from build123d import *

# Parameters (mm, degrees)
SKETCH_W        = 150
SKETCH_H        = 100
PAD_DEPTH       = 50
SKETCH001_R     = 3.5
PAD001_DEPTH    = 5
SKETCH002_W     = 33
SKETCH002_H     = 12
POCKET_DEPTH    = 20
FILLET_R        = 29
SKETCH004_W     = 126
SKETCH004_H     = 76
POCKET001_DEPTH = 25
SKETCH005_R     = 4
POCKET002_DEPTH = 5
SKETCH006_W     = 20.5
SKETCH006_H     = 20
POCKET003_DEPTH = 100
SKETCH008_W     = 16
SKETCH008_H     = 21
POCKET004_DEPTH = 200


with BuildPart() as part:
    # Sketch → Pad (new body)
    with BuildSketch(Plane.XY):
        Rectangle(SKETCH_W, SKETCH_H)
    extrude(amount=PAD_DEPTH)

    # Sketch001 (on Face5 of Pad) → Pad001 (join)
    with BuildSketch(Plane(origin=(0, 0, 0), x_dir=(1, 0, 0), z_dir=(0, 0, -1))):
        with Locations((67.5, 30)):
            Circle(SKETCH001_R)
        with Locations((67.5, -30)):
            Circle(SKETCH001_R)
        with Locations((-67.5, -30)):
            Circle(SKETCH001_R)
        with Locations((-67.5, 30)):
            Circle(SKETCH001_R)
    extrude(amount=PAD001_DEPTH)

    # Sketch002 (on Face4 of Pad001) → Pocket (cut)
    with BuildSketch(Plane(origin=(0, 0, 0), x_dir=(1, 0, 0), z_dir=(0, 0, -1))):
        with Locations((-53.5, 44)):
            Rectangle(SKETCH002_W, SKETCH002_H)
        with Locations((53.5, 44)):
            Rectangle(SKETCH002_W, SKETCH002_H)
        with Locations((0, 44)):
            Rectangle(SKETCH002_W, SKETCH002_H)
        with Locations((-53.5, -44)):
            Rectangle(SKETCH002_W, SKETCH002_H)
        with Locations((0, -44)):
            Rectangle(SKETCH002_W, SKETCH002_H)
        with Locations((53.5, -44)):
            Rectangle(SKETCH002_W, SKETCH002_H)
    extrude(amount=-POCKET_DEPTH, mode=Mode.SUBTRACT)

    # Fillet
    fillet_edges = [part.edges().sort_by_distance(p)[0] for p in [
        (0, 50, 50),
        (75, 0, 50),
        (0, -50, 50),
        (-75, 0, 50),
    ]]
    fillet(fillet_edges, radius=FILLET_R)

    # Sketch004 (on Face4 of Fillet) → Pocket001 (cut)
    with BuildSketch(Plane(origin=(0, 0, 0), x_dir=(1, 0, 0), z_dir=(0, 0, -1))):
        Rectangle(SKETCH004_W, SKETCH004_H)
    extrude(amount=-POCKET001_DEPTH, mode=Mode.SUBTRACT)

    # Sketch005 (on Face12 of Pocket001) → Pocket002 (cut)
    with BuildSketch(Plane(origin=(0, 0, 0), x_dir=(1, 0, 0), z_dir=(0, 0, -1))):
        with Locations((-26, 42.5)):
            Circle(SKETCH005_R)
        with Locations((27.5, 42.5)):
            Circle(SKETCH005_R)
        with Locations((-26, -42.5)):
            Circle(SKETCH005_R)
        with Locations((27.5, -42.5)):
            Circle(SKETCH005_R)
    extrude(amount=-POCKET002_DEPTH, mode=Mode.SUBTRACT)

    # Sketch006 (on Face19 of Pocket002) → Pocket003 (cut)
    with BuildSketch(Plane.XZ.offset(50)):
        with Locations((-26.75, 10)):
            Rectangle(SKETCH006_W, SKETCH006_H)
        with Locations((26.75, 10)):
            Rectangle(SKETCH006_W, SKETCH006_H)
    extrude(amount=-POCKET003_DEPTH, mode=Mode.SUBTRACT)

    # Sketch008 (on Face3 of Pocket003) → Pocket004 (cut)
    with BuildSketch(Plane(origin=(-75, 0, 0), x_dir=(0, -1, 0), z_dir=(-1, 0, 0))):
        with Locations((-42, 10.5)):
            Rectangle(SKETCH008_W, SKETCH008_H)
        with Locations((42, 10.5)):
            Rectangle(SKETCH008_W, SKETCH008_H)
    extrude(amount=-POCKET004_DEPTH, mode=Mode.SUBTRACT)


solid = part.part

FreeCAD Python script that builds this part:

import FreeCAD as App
import Part
import Sketcher


def edges_at(feature, points):
    """Names of the edges that pass closest to the given points."""
    edges = feature.Shape.Edges
    near = lambda p: min(range(len(edges)), key=lambda i: edges[i].distToShape(Part.Vertex(*p))[0])
    return sorted({f"Edge{near(p) + 1}" for p in points})

doc = App.newDocument("Part")
body = doc.addObject("PartDesign::Body", "Body")

sketch1 = doc.addObject("Sketcher::SketchObject", "Sketch")
body.addObject(sketch1)
sketch1.AttachmentSupport = (doc.XY_Plane, [""])
sketch1.MapMode = "FlatFace"
sketch1.addGeometry([
    Part.LineSegment(App.Vector(-75, 50, 0), App.Vector(-75, -50, 0)),
    Part.LineSegment(App.Vector(-75, -50, 0), App.Vector(75, -50, 0)),
    Part.LineSegment(App.Vector(75, -50, 0), App.Vector(75, 50, 0)),
    Part.LineSegment(App.Vector(75, 50, 0), App.Vector(-75, 50, 0)),
], False)
sketch1.addConstraint([
    Sketcher.Constraint("Coincident", 0, 2, 1, 1),
    Sketcher.Constraint("Coincident", 1, 2, 2, 1),
    Sketcher.Constraint("Coincident", 2, 2, 3, 1),
    Sketcher.Constraint("Coincident", 3, 2, 0, 1),
    Sketcher.Constraint("Vertical", 0),
    Sketcher.Constraint("Horizontal", 1),
    Sketcher.Constraint("Vertical", 2),
    Sketcher.Constraint("Horizontal", 3),
    Sketcher.Constraint("Symmetric", 0, 2, 2, 2, -1, 1),
    Sketcher.Constraint("DistanceX", 1, 1, 1, 2, 150.0),
    Sketcher.Constraint("DistanceY", 0, 2, 0, 1, 100.0),
])
pad1 = doc.addObject("PartDesign::Pad", "Pad")
body.addObject(pad1)
pad1.Profile = sketch1
pad1.Length = 50

sketch2 = doc.addObject("Sketcher::SketchObject", "Sketch001")
body.addObject(sketch2)
sketch2.AttachmentSupport = (doc.XY_Plane, [""])
sketch2.MapMode = "FlatFace"
sketch2.addGeometry([
    Part.Circle(App.Vector(67.5, -30, 0), App.Vector(0, 0, 1), 3.5),
    Part.Circle(App.Vector(67.5, 30, 0), App.Vector(0, 0, 1), 3.5),
    Part.Circle(App.Vector(-67.5, 30, 0), App.Vector(0, 0, 1), 3.5),
    Part.Circle(App.Vector(-67.5, -30, 0), App.Vector(0, 0, 1), 3.5),
], False)
sketch2.addConstraint([
    Sketcher.Constraint("Equal", 0, 1),
    Sketcher.Constraint("Equal", 1, 2),
    Sketcher.Constraint("Equal", 2, 3),
    Sketcher.Constraint("Symmetric", 0, 3, 2, 3, -1, 1),
    Sketcher.Constraint("Symmetric", 1, 3, 3, 3, -1, 1),
    Sketcher.Constraint("Symmetric", 1, 3, 2, 3, -2),
    Sketcher.Constraint("Diameter", 0, 7.0),
    Sketcher.Constraint("DistanceY", 0, 3, -1, 1, 30.0),
    Sketcher.Constraint("DistanceX", 2, 3, 1, 3, 135.0),
])
pad2 = doc.addObject("PartDesign::Pad", "Pad001")
body.addObject(pad2)
pad2.Profile = sketch2
pad2.Length = 5
pad2.Reversed = True

sketch3 = doc.addObject("Sketcher::SketchObject", "Sketch002")
body.addObject(sketch3)
sketch3.AttachmentSupport = (doc.XY_Plane, [""])
sketch3.MapMode = "FlatFace"
sketch3.addGeometry([
    Part.LineSegment(App.Vector(-70, -50, 0), App.Vector(-70, -38, 0)),
    Part.LineSegment(App.Vector(-70, -38, 0), App.Vector(-37, -38, 0)),
    Part.LineSegment(App.Vector(-37, -38, 0), App.Vector(-37, -50, 0)),
    Part.LineSegment(App.Vector(-37, -50, 0), App.Vector(-70, -50, 0)),
    Part.LineSegment(App.Vector(37, -50, 0), App.Vector(37, -38, 0)),
    Part.LineSegment(App.Vector(37, -38, 0), App.Vector(70, -38, 0)),
    Part.LineSegment(App.Vector(70, -38, 0), App.Vector(70, -50, 0)),
    Part.LineSegment(App.Vector(70, -50, 0), App.Vector(37, -50, 0)),
    Part.LineSegment(App.Vector(-16.5, -50, 0), App.Vector(-16.5, -38, 0)),
    Part.LineSegment(App.Vector(-16.5, -38, 0), App.Vector(16.5, -38, 0)),
    Part.LineSegment(App.Vector(16.5, -38, 0), App.Vector(16.5, -50, 0)),
    Part.LineSegment(App.Vector(16.5, -50, 0), App.Vector(-16.5, -50, 0)),
    Part.LineSegment(App.Vector(-70, 38, 0), App.Vector(-70, 50, 0)),
    Part.LineSegment(App.Vector(-70, 50, 0), App.Vector(-37, 50, 0)),
    Part.LineSegment(App.Vector(-37, 50, 0), App.Vector(-37, 38, 0)),
    Part.LineSegment(App.Vector(-37, 38, 0), App.Vector(-70, 38, 0)),
    Part.LineSegment(App.Vector(-16.5, 38, 0), App.Vector(-16.5, 50, 0)),
    Part.LineSegment(App.Vector(-16.5, 50, 0), App.Vector(16.5, 50, 0)),
    Part.LineSegment(App.Vector(16.5, 50, 0), App.Vector(16.5, 38, 0)),
    Part.LineSegment(App.Vector(16.5, 38, 0), App.Vector(-16.5, 38, 0)),
    Part.LineSegment(App.Vector(37, 38, 0), App.Vector(37, 50, 0)),
    Part.LineSegment(App.Vector(37, 50, 0), App.Vector(70, 50, 0)),
    Part.LineSegment(App.Vector(70, 50, 0), App.Vector(70, 38, 0)),
    Part.LineSegment(App.Vector(70, 38, 0), App.Vector(37, 38, 0)),
], False)
sketch3.addConstraint([
    Sketcher.Constraint("Coincident", 0, 2, 1, 1),
    Sketcher.Constraint("Coincident", 1, 2, 2, 1),
    Sketcher.Constraint("Coincident", 2, 2, 3, 1),
    Sketcher.Constraint("Coincident", 3, 2, 0, 1),
    Sketcher.Constraint("Coincident", 4, 2, 5, 1),
    Sketcher.Constraint("Coincident", 5, 2, 6, 1),
    Sketcher.Constraint("Coincident", 6, 2, 7, 1),
    Sketcher.Constraint("Coincident", 7, 2, 4, 1),
    Sketcher.Constraint("Coincident", 8, 2, 9, 1),
    Sketcher.Constraint("Coincident", 9, 2, 10, 1),
    Sketcher.Constraint("Coincident", 10, 2, 11, 1),
    Sketcher.Constraint("Coincident", 11, 2, 8, 1),
    Sketcher.Constraint("Coincident", 12, 2, 13, 1),
    Sketcher.Constraint("Coincident", 13, 2, 14, 1),
    Sketcher.Constraint("Coincident", 14, 2, 15, 1),
    Sketcher.Constraint("Coincident", 15, 2, 12, 1),
    Sketcher.Constraint("Coincident", 16, 2, 17, 1),
    Sketcher.Constraint("Coincident", 17, 2, 18, 1),
    Sketcher.Constraint("Coincident", 18, 2, 19, 1),
    Sketcher.Constraint("Coincident", 19, 2, 16, 1),
    Sketcher.Constraint("Coincident", 20, 2, 21, 1),
    Sketcher.Constraint("Coincident", 21, 2, 22, 1),
    Sketcher.Constraint("Coincident", 22, 2, 23, 1),
    Sketcher.Constraint("Coincident", 23, 2, 20, 1),
    Sketcher.Constraint("Vertical", 0),
    Sketcher.Constraint("Horizontal", 1),
    Sketcher.Constraint("Vertical", 2),
    Sketcher.Constraint("Horizontal", 3),
    Sketcher.Constraint("Vertical", 4),
    Sketcher.Constraint("Horizontal", 5),
    Sketcher.Constraint("Vertical", 6),
    Sketcher.Constraint("Horizontal", 7),
    Sketcher.Constraint("Vertical", 8),
    Sketcher.Constraint("Horizontal", 9),
    Sketcher.Constraint("Vertical", 10),
    Sketcher.Constraint("Horizontal", 11),
    Sketcher.Constraint("Vertical", 12),
    Sketcher.Constraint("Horizontal", 13),
    Sketcher.Constraint("Vertical", 14),
    Sketcher.Constraint("Horizontal", 15),
    Sketcher.Constraint("Vertical", 16),
    Sketcher.Constraint("Horizontal", 17),
    Sketcher.Constraint("Vertical", 18),
    Sketcher.Constraint("Horizontal", 19),
    Sketcher.Constraint("Vertical", 20),
    Sketcher.Constraint("Horizontal", 21),
    Sketcher.Constraint("Vertical", 22),
    Sketcher.Constraint("Horizontal", 23),
    Sketcher.Constraint("Symmetric", 6, 2, 12, 2, -1, 1),
    Sketcher.Constraint("Symmetric", 4, 2, 14, 2, -1, 1),
    Sketcher.Constraint("Symmetric", 10, 2, 16, 2, -1, 1),
    Sketcher.Constraint("Symmetric", 8, 2, 18, 2, -1, 1),
    Sketcher.Constraint("Symmetric", 2, 2, 20, 2, -1, 1),
    Sketcher.Constraint("Symmetric", 0, 2, 22, 2, -1, 1),
    Sketcher.Constraint("Symmetric", 1, 2, 4, 2, -2),
    Sketcher.Constraint("Symmetric", 3, 2, 6, 2, -2),
    Sketcher.Constraint("Horizontal", 5, 2, 8, 2),
    Sketcher.Constraint("Horizontal", 7, 2, 10, 2),
    Sketcher.Constraint("Vertical", 11, 2, 16, 2),
    Sketcher.Constraint("Equal", 7, 9),
    Sketcher.Constraint("DistanceX", 1, 1, 1, 2, 33.0),
    Sketcher.Constraint("DistanceY", 0, 1, 0, 2, 12.0),
    Sketcher.Constraint("DistanceX", 0, 2, -1, 1, 70.0),
    Sketcher.Constraint("DistanceY", 0, 2, -1, 1, 38.0),
])
pocket1 = doc.addObject("PartDesign::Pocket", "Pocket")
body.addObject(pocket1)
pocket1.Profile = sketch3
pocket1.Length = 20
pocket1.Reversed = True
doc.recompute()

fillet = doc.addObject("PartDesign::Fillet", "Fillet")
body.addObject(fillet)
fillet.Base = (pocket1, edges_at(pocket1, [
    (0, 50, 50),
    (75, 0, 50),
    (0, -50, 50),
    (-75, 0, 50),
]))
fillet.Radius = 29

sketch4 = doc.addObject("Sketcher::SketchObject", "Sketch003")
body.addObject(sketch4)
sketch4.AttachmentSupport = (doc.XY_Plane, [""])
sketch4.MapMode = "FlatFace"
sketch4.addGeometry([
    Part.LineSegment(App.Vector(-63, -38, 0), App.Vector(-63, 38, 0)),
    Part.LineSegment(App.Vector(-63, 38, 0), App.Vector(63, 38, 0)),
    Part.LineSegment(App.Vector(63, 38, 0), App.Vector(63, -38, 0)),
    Part.LineSegment(App.Vector(63, -38, 0), App.Vector(-63, -38, 0)),
], False)
sketch4.addConstraint([
    Sketcher.Constraint("Coincident", 0, 2, 1, 1),
    Sketcher.Constraint("Coincident", 1, 2, 2, 1),
    Sketcher.Constraint("Coincident", 2, 2, 3, 1),
    Sketcher.Constraint("Coincident", 3, 2, 0, 1),
    Sketcher.Constraint("Vertical", 0),
    Sketcher.Constraint("Horizontal", 1),
    Sketcher.Constraint("Vertical", 2),
    Sketcher.Constraint("Horizontal", 3),
    Sketcher.Constraint("Symmetric", 0, 2, 2, 2, -1, 1),
    Sketcher.Constraint("DistanceX", 1, 1, 1, 2, 126.0),
    Sketcher.Constraint("DistanceY", 0, 1, 0, 2, 76.0),
])
pocket2 = doc.addObject("PartDesign::Pocket", "Pocket001")
body.addObject(pocket2)
pocket2.Profile = sketch4
pocket2.Length = 25
pocket2.Reversed = True

sketch5 = doc.addObject("Sketcher::SketchObject", "Sketch004")
body.addObject(sketch5)
sketch5.AttachmentSupport = (doc.XY_Plane, [""])
sketch5.MapMode = "FlatFace"
sketch5.addGeometry([
    Part.Circle(App.Vector(-26, -42.5, 0), App.Vector(0, 0, 1), 4),
    Part.Circle(App.Vector(27.5, -42.5, 0), App.Vector(0, 0, 1), 4),
    Part.Circle(App.Vector(-26, 42.5, 0), App.Vector(0, 0, 1), 4),
    Part.Circle(App.Vector(27.5, 42.5, 0), App.Vector(0, 0, 1), 4),
], False)
sketch5.addConstraint([
    Sketcher.Constraint("Equal", 0, 1),
    Sketcher.Constraint("Equal", 1, 2),
    Sketcher.Constraint("Equal", 2, 3),
    Sketcher.Constraint("Symmetric", 0, 3, 2, 3, -1),
    Sketcher.Constraint("Symmetric", 1, 3, 3, 3, -1),
    Sketcher.Constraint("Horizontal", 0, 3, 1, 3),
    Sketcher.Constraint("Diameter", 0, 8.0),
    Sketcher.Constraint("DistanceX", 0, 3, -1, 1, 26.0),
    Sketcher.Constraint("DistanceY", 0, 3, 2, 3, 85.0),
    Sketcher.Constraint("DistanceX", -1, 1, 1, 3, 27.5),
])
pocket3 = doc.addObject("PartDesign::Pocket", "Pocket002")
body.addObject(pocket3)
pocket3.Profile = sketch5
pocket3.Length = 5
pocket3.Reversed = True

sketch6 = doc.addObject("Sketcher::SketchObject", "Sketch005")
body.addObject(sketch6)
sketch6.AttachmentSupport = (doc.XZ_Plane, [""])
sketch6.MapMode = "FlatFace"
sketch6.AttachmentOffset = App.Placement(App.Vector(0, 0, 50), App.Rotation())
sketch6.addGeometry([
    Part.LineSegment(App.Vector(-37, 20, 0), App.Vector(-37, 0, 0)),
    Part.LineSegment(App.Vector(-37, 0, 0), App.Vector(-16.5, 0, 0)),
    Part.LineSegment(App.Vector(-16.5, 0, 0), App.Vector(-16.5, 20, 0)),
    Part.LineSegment(App.Vector(-16.5, 20, 0), App.Vector(-37, 20, 0)),
    Part.LineSegment(App.Vector(16.5, 20, 0), App.Vector(16.5, 0, 0)),
    Part.LineSegment(App.Vector(16.5, 0, 0), App.Vector(37, 0, 0)),
    Part.LineSegment(App.Vector(37, 0, 0), App.Vector(37, 20, 0)),
    Part.LineSegment(App.Vector(37, 20, 0), App.Vector(16.5, 20, 0)),
], False)
sketch6.addConstraint([
    Sketcher.Constraint("Coincident", 0, 2, 1, 1),
    Sketcher.Constraint("Coincident", 1, 2, 2, 1),
    Sketcher.Constraint("Coincident", 2, 2, 3, 1),
    Sketcher.Constraint("Coincident", 3, 2, 0, 1),
    Sketcher.Constraint("Coincident", 4, 2, 5, 1),
    Sketcher.Constraint("Coincident", 5, 2, 6, 1),
    Sketcher.Constraint("Coincident", 6, 2, 7, 1),
    Sketcher.Constraint("Coincident", 7, 2, 4, 1),
    Sketcher.Constraint("Vertical", 0),
    Sketcher.Constraint("Horizontal", 1),
    Sketcher.Constraint("Vertical", 2),
    Sketcher.Constraint("Horizontal", 3),
    Sketcher.Constraint("Vertical", 4),
    Sketcher.Constraint("Horizontal", 5),
    Sketcher.Constraint("Vertical", 6),
    Sketcher.Constraint("Horizontal", 7),
    Sketcher.Constraint("Symmetric", 1, 2, 4, 2, -1, 1),
    Sketcher.Constraint("Symmetric", 0, 2, 5, 2, -2),
    Sketcher.Constraint("Horizontal", 3, 2, 6, 2),
    Sketcher.Constraint("DistanceY", 0, 2, 0, 1, 20.0),
    Sketcher.Constraint("DistanceX", 1, 1, 1, 2, 20.5),
    Sketcher.Constraint("DistanceX", 0, 2, -1, 1, 37.0),
])
pocket4 = doc.addObject("PartDesign::Pocket", "Pocket003")
body.addObject(pocket4)
pocket4.Profile = sketch6
pocket4.Length = 100

sketch7 = doc.addObject("Sketcher::SketchObject", "Sketch006")
body.addObject(sketch7)
sketch7.AttachmentSupport = (doc.YZ_Plane, [""])
sketch7.MapMode = "FlatFace"
sketch7.AttachmentOffset = App.Placement(App.Vector(0, 0, -75), App.Rotation())
sketch7.addGeometry([
    Part.LineSegment(App.Vector(50, 21, 0), App.Vector(50, 0, 0)),
    Part.LineSegment(App.Vector(50, 0, 0), App.Vector(34, 0, 0)),
    Part.LineSegment(App.Vector(34, 0, 0), App.Vector(34, 21, 0)),
    Part.LineSegment(App.Vector(34, 21, 0), App.Vector(50, 21, 0)),
    Part.LineSegment(App.Vector(-34, 21, 0), App.Vector(-34, 0, 0)),
    Part.LineSegment(App.Vector(-34, 0, 0), App.Vector(-50, 0, 0)),
    Part.LineSegment(App.Vector(-50, 0, 0), App.Vector(-50, 21, 0)),
    Part.LineSegment(App.Vector(-50, 21, 0), App.Vector(-34, 21, 0)),
], False)
sketch7.addConstraint([
    Sketcher.Constraint("Coincident", 0, 2, 1, 1),
    Sketcher.Constraint("Coincident", 1, 2, 2, 1),
    Sketcher.Constraint("Coincident", 2, 2, 3, 1),
    Sketcher.Constraint("Coincident", 3, 2, 0, 1),
    Sketcher.Constraint("Coincident", 4, 2, 5, 1),
    Sketcher.Constraint("Coincident", 5, 2, 6, 1),
    Sketcher.Constraint("Coincident", 6, 2, 7, 1),
    Sketcher.Constraint("Coincident", 7, 2, 4, 1),
    Sketcher.Constraint("Vertical", 0),
    Sketcher.Constraint("Horizontal", 1),
    Sketcher.Constraint("Vertical", 2),
    Sketcher.Constraint("Horizontal", 3),
    Sketcher.Constraint("Vertical", 4),
    Sketcher.Constraint("Horizontal", 5),
    Sketcher.Constraint("Vertical", 6),
    Sketcher.Constraint("Horizontal", 7),
    Sketcher.Constraint("Symmetric", 1, 2, 4, 2, -1, 1),
    Sketcher.Constraint("Symmetric", 0, 2, 5, 2, -2),
    Sketcher.Constraint("Horizontal", 3, 2, 6, 2),
    Sketcher.Constraint("DistanceX", 1, 2, 1, 1, 16.0),
    Sketcher.Constraint("DistanceY", 0, 2, 0, 1, 21.0),
    Sketcher.Constraint("DistanceX", -1, 1, 0, 2, 50.0),
])
pocket5 = doc.addObject("PartDesign::Pocket", "Pocket004")
body.addObject(pocket5)
pocket5.Profile = sketch7
pocket5.Length = 200
pocket5.Reversed = True

doc.recompute()
